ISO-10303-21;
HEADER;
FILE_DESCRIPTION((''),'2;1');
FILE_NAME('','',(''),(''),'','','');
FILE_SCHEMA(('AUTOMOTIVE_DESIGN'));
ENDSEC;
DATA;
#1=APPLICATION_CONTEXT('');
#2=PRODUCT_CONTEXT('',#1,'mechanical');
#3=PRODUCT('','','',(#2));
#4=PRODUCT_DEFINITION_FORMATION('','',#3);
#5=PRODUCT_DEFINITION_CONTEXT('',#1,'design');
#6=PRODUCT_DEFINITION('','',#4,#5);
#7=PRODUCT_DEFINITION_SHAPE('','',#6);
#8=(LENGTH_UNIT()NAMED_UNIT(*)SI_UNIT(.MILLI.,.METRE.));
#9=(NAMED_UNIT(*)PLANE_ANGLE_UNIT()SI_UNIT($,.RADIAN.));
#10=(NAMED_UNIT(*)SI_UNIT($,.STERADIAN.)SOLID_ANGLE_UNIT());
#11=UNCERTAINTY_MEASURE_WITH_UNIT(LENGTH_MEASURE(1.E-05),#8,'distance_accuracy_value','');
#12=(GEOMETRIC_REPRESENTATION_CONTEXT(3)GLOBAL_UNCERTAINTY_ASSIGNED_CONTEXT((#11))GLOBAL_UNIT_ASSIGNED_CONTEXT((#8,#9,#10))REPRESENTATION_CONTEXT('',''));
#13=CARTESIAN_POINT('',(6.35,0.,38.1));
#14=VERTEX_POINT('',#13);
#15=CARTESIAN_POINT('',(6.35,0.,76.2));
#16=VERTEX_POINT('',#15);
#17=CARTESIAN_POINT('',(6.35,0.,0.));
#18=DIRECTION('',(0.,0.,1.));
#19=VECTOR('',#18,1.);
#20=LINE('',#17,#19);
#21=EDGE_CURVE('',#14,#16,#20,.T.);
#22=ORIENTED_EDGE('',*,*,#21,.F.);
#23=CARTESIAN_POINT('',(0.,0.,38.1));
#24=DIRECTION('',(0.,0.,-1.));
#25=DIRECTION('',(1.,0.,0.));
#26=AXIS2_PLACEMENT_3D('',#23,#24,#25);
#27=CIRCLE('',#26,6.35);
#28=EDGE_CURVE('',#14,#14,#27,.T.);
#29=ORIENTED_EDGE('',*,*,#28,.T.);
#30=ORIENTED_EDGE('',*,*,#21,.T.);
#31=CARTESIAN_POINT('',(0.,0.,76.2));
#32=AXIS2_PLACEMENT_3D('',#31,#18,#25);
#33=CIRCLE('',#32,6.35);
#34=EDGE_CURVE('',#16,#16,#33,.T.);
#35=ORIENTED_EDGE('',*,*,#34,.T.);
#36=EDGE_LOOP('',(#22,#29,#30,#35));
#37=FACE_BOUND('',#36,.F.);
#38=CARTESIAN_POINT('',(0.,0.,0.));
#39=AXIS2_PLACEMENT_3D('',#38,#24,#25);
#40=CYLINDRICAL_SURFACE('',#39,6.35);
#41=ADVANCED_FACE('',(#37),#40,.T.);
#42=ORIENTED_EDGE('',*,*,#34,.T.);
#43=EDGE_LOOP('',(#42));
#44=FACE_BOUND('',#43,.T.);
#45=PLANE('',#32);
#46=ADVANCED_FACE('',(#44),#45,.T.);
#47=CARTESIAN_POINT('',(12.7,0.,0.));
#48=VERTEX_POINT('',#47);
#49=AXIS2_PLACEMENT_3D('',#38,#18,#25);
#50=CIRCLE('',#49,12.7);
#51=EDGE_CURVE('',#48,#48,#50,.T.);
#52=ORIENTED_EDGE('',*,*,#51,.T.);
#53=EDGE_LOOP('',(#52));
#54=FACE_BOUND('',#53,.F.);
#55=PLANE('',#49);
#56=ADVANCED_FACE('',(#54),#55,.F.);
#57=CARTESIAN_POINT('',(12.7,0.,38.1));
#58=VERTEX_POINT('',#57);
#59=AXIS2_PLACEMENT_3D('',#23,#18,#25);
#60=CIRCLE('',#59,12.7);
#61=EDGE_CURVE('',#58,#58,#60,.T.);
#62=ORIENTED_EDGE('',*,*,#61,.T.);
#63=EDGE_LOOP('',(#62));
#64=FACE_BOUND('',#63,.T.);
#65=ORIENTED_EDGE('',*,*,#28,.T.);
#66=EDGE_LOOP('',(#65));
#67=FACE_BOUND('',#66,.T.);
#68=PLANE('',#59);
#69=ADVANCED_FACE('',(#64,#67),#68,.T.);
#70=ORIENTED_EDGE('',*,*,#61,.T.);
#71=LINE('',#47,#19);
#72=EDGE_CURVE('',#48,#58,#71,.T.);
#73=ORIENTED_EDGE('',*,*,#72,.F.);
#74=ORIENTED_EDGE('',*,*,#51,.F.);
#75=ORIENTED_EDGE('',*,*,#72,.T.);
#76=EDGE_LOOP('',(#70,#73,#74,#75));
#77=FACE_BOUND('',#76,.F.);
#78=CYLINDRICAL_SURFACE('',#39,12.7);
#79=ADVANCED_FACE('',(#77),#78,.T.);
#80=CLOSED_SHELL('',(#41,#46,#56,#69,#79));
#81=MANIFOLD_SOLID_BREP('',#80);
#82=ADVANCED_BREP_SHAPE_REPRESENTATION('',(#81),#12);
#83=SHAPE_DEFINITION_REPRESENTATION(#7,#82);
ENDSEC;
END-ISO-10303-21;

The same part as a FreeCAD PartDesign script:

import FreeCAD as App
import Part
import Sketcher
from FreeCAD import Vector
Q = App.Units.Quantity

doc = App.newDocument("Part")
params = doc.addObject("Spreadsheet::Sheet", "Params")
for row, (alias, value) in enumerate([
    ("sketch1_diameter", "0.5 in"),
    ("pad1_length", "3 in"),
    ("sketch2_diameter", "1 in"),
    ("pad2_length", "1.5 in"),
], start=1):
    params.set(f"A{row}", alias)
    params.set(f"B{row}", "=" + value)
    params.setAlias(f"B{row}", alias)

body = doc.addObject("PartDesign::Body", "Body")

# Sketch on XY plane
sketch1 = body.newObject("Sketcher::SketchObject", "Sketch")
sketch1.AttachmentSupport = (doc.getObject("XY_Plane"), [""])
sketch1.MapMode = "FlatFace"
sketch1.addGeometry(Part.Circle(Vector(0, 0, 0), Vector(0, 0, 1), 6), False)
sketch1.addConstraint([
    Sketcher.Constraint("Coincident", 0, 3, -1, 1),
    Sketcher.Constraint("Diameter", 0, Q("0.5 in")),
])
sketch1.setExpression("Constraints[1]", "Params.sketch1_diameter")
pad1 = body.newObject("PartDesign::Pad", "Pad")
pad1.Profile = sketch1
pad1.setExpression("Length", "Params.pad1_length")

# Sketch on XY plane
sketch2 = body.newObject("Sketcher::SketchObject", "Sketch001")
sketch2.AttachmentSupport = (doc.getObject("XY_Plane"), [""])
sketch2.MapMode = "FlatFace"
sketch2.addGeometry(Part.Circle(Vector(0, 0, 0), Vector(0, 0, 1), 13), False)
sketch2.addConstraint([
    Sketcher.Constraint("Coincident", 0, 3, -1, 1),
    Sketcher.Constraint("Diameter", 0, Q("1 in")),
])
sketch2.setExpression("Constraints[1]", "Params.sketch2_diameter")
pad2 = body.newObject("PartDesign::Pad", "Pad001")
pad2.Profile = sketch2
pad2.setExpression("Length", "Params.pad2_length")

doc.recompute()
